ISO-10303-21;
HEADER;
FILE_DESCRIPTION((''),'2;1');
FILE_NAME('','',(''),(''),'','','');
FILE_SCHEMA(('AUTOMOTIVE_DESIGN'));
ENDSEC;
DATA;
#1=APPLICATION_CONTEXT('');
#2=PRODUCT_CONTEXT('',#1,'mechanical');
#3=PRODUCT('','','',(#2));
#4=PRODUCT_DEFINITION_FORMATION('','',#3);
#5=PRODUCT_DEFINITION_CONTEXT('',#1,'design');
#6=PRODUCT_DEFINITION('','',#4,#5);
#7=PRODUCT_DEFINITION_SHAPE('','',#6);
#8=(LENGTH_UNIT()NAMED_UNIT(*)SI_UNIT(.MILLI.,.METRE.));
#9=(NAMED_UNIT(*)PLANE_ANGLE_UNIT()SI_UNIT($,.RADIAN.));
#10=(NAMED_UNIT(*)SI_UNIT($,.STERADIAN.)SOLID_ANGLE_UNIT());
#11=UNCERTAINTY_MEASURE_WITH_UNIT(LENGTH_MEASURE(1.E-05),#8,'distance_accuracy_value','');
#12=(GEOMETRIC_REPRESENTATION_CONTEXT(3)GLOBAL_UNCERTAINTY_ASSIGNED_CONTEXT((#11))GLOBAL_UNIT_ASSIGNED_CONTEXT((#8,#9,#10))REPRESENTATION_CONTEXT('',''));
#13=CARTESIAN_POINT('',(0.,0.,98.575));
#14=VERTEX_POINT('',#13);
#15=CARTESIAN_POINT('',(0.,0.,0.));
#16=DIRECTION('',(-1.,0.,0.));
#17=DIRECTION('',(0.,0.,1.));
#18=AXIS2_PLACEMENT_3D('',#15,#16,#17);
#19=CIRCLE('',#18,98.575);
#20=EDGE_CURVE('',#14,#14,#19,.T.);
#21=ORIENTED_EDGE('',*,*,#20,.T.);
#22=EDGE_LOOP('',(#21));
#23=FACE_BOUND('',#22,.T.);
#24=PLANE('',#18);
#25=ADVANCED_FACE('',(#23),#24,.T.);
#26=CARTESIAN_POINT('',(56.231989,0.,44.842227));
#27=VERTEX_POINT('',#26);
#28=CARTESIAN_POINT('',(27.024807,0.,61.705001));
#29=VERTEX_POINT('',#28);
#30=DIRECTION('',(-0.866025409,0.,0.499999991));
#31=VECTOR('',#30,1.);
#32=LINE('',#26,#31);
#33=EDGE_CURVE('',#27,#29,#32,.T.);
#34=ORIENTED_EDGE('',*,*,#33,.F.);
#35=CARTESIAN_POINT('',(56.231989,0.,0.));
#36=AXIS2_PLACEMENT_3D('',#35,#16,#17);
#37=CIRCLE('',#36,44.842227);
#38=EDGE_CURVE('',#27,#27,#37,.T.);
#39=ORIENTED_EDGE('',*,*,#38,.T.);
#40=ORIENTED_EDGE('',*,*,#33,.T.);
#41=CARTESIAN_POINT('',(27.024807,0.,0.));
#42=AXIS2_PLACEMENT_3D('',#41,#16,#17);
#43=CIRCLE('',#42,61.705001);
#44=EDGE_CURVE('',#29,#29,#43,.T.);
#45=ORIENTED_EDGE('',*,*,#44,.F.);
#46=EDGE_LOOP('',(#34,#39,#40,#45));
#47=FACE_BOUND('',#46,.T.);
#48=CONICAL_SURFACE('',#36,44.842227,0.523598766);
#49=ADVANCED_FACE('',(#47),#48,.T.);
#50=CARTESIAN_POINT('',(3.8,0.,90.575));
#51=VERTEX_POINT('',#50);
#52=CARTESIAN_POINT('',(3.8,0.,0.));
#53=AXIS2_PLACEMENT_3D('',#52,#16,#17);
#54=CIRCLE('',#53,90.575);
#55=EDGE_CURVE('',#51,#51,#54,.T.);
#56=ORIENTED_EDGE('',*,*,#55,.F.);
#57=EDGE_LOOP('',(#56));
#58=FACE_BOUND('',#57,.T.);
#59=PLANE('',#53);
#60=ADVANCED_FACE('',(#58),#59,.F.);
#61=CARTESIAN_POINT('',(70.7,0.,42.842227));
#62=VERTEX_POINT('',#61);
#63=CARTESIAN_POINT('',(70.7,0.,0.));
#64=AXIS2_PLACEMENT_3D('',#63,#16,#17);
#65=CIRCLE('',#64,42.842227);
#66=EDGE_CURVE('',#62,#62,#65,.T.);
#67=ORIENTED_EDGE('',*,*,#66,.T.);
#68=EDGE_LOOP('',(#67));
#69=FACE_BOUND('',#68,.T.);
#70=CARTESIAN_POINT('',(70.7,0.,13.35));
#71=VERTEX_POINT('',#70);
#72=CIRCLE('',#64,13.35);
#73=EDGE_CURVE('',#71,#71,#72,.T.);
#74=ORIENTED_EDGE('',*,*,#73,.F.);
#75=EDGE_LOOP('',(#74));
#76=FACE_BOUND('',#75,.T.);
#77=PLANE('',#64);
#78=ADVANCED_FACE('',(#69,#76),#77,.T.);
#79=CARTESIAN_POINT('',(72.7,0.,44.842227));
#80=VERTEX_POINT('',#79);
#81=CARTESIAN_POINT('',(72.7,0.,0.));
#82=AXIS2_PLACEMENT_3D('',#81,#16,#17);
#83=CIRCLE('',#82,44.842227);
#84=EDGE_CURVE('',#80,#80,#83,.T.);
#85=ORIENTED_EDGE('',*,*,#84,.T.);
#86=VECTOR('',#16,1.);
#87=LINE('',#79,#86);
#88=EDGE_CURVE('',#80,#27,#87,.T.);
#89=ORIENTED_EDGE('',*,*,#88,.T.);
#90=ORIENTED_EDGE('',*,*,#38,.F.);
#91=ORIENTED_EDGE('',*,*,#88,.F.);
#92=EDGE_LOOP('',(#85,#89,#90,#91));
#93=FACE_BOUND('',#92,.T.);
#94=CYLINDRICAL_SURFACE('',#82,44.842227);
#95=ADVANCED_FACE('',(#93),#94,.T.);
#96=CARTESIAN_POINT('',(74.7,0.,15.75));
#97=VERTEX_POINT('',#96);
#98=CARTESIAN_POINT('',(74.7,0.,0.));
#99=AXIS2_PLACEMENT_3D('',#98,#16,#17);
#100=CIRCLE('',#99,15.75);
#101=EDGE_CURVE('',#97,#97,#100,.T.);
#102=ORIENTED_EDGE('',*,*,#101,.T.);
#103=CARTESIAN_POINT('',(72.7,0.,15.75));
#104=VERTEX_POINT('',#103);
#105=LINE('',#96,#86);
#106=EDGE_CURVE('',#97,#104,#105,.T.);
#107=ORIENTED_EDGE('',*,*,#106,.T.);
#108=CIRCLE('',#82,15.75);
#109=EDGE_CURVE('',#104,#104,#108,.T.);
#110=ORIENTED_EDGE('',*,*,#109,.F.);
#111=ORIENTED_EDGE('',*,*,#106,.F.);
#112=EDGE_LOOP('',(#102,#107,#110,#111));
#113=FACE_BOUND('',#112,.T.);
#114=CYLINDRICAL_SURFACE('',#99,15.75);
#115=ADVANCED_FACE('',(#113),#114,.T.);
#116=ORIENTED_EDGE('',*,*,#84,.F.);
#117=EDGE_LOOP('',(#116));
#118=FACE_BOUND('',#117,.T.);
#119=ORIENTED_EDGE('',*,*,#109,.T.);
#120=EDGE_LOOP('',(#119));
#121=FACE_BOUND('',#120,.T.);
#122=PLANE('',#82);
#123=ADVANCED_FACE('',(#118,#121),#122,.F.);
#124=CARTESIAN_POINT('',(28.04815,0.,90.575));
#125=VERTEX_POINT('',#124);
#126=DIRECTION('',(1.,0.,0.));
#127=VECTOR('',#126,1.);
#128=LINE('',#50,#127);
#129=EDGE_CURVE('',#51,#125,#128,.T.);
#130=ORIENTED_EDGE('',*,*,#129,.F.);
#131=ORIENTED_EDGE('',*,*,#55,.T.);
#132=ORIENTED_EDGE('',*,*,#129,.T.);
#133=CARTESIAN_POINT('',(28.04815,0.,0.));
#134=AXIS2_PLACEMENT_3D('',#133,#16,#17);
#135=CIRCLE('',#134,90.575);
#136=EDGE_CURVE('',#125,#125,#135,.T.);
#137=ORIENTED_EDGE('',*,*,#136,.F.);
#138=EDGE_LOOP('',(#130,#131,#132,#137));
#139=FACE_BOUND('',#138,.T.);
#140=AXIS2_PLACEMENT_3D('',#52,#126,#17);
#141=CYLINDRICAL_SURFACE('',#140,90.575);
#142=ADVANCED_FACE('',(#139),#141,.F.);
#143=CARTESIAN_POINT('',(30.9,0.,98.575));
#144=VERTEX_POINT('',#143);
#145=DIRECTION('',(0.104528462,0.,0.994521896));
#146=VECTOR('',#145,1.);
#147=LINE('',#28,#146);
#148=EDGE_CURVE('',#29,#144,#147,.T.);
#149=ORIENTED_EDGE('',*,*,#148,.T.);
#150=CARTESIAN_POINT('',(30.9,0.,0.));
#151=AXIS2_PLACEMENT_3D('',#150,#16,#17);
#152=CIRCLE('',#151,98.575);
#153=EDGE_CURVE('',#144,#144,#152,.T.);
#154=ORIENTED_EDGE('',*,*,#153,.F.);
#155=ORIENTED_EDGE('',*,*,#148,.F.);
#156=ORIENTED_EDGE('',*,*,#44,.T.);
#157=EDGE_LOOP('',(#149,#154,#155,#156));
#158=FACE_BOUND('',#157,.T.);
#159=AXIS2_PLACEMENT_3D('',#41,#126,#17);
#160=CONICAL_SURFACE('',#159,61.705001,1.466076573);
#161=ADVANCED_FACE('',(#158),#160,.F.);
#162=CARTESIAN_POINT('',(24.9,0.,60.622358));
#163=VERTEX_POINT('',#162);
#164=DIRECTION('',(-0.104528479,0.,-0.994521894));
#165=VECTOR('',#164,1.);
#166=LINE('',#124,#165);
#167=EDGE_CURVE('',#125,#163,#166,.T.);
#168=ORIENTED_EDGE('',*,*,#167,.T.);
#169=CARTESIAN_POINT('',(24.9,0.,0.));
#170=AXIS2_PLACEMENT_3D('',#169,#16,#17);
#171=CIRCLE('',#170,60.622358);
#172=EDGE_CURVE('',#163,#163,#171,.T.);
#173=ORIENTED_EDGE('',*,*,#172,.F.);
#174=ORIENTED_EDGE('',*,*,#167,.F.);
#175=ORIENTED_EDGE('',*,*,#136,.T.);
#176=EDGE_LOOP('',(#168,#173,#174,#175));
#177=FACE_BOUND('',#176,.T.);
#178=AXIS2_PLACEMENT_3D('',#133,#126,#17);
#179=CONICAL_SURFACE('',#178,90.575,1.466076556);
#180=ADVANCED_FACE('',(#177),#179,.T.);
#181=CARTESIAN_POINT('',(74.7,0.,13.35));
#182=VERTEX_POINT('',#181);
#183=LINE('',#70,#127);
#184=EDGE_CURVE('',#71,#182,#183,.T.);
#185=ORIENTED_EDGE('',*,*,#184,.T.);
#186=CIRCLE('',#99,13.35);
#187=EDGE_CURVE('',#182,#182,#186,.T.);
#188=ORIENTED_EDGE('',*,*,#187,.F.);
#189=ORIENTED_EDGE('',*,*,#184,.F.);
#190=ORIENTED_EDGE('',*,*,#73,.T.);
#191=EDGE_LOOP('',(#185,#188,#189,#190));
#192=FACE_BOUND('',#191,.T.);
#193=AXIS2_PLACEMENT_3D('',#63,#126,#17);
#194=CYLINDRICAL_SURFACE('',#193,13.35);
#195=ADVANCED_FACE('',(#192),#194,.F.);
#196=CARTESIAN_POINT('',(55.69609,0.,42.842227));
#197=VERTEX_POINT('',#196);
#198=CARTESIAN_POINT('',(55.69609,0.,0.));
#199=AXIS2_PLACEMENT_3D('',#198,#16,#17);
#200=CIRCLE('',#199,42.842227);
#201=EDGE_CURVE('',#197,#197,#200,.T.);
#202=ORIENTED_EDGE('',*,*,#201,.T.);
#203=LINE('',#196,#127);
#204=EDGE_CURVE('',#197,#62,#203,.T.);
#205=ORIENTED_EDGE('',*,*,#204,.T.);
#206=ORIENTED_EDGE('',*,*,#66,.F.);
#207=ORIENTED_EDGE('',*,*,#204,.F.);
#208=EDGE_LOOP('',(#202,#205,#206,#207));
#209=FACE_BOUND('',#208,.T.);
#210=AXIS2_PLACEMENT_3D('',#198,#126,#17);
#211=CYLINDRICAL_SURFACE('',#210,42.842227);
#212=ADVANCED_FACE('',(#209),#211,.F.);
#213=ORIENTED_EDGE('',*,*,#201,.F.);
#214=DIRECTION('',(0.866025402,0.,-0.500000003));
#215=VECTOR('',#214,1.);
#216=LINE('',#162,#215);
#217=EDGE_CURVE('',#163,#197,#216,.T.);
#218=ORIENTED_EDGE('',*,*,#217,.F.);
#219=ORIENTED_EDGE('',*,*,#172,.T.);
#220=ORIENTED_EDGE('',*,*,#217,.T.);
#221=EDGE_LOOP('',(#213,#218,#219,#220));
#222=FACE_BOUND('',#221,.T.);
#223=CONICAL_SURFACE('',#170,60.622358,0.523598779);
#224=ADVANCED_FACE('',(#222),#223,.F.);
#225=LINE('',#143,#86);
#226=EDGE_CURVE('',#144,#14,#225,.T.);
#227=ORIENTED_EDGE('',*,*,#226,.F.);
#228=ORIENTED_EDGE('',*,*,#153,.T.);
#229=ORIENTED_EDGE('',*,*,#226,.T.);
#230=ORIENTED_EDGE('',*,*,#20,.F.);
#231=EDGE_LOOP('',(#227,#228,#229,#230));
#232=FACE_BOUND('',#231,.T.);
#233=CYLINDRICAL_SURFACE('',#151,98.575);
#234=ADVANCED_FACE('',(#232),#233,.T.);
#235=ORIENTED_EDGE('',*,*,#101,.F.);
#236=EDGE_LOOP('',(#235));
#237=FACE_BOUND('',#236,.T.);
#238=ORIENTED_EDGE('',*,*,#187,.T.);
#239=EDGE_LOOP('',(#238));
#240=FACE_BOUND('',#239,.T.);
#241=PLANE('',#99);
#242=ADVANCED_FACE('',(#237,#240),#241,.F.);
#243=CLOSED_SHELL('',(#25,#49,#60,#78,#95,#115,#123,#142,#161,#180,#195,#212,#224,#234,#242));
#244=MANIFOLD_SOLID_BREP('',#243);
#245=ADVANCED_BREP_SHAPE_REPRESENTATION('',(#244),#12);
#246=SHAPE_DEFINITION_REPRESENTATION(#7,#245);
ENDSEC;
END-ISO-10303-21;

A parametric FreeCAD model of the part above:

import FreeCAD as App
import Part
import Sketcher
from FreeCAD import Vector
Q = App.Units.Quantity

doc = App.newDocument("Part")
params = doc.addObject("Spreadsheet::Sheet", "Params")
for row, (alias, value) in enumerate([
    ("sketch1_width", "4 mm"),
    ("sketch1_width2", "2 mm"),
    ("sketch1_width3", "3.8 mm"),
    ("sketch1_width4", "30.9 mm"),
    ("sketch1_height", "2.4 mm"),
    ("revolution_angle", "360 deg"),
], start=1):
    params.set(f"A{row}", alias)
    params.set(f"B{row}", "=" + value)
    params.setAlias(f"B{row}", alias)

body = doc.addObject("PartDesign::Body", "Body")

sketch1 = doc.addObject("Sketcher::SketchObject", "Sketch")
body.addObject(sketch1)
sketch1.AttachmentSupport = (doc.XZ_Plane, [""])
sketch1.MapMode = "FlatFace"
sketch1.addGeometry([
    Part.LineSegment(Vector(0, 98.6, 0), Vector(0, 0, 0)),
    Part.LineSegment(Vector(0, 0, 0), Vector(3.8, 0, 0)),
    Part.LineSegment(Vector(3.8, 0, 0), Vector(3.8, 90.6, 0)),
    Part.LineSegment(Vector(3.8, 90.6, 0), Vector(28, 90.6, 0)),
    Part.LineSegment(Vector(28, 90.6, 0), Vector(24.9, 60.6, 0)),
    Part.LineSegment(Vector(24.9, 60.6, 0), Vector(55.7, 42.8, 0)),
    Part.LineSegment(Vector(55.7, 42.8, 0), Vector(70.7, 42.8, 0)),
    Part.LineSegment(Vector(70.7, 42.8, 0), Vector(70.7, 13.3, 0)),
    Part.LineSegment(Vector(70.7, 13.3, 0), Vector(74.7, 13.3, 0)),
    Part.LineSegment(Vector(74.7, 13.3, 0), Vector(74.7, 15.8, 0)),
    Part.LineSegment(Vector(74.7, 15.8, 0), Vector(72.7, 15.8, 0)),
    Part.LineSegment(Vector(72.7, 15.8, 0), Vector(72.7, 44.8, 0)),
    Part.LineSegment(Vector(72.7, 44.8, 0), Vector(56.2, 44.8, 0)),
    Part.LineSegment(Vector(56.2, 44.8, 0), Vector(27, 61.7, 0)),
    Part.LineSegment(Vector(27, 61.7, 0), Vector(30.9, 98.6, 0)),
    Part.LineSegment(Vector(30.9, 98.6, 0), Vector(0, 98.6, 0)),
], False)
sketch1.addConstraint([
    Sketcher.Constraint("Coincident", 0, 2, 1, 1),
    Sketcher.Constraint("Coincident", 1, 2, 2, 1),
    Sketcher.Constraint("Coincident", 2, 2, 3, 1),
    Sketcher.Constraint("Coincident", 3, 2, 4, 1),
    Sketcher.Constraint("Coincident", 4, 2, 5, 1),
    Sketcher.Constraint("Coincident", 5, 2, 6, 1),
    Sketcher.Constraint("Coincident", 6, 2, 7, 1),
    Sketcher.Constraint("Coincident", 7, 2, 8, 1),
    Sketcher.Constraint("Coincident", 8, 2, 9, 1),
    Sketcher.Constraint("Coincident", 9, 2, 10, 1),
    Sketcher.Constraint("Coincident", 10, 2, 11, 1),
    Sketcher.Constraint("Coincident", 11, 2, 12, 1),
    Sketcher.Constraint("Coincident", 12, 2, 13, 1),
    Sketcher.Constraint("Coincident", 13, 2, 14, 1),
    Sketcher.Constraint("Coincident", 14, 2, 15, 1),
    Sketcher.Constraint("Coincident", 15, 2, 0, 1),
    Sketcher.Constraint("Vertical", 0),
    Sketcher.Constraint("Horizontal", 1),
    Sketcher.Constraint("Vertical", 2),
    Sketcher.Constraint("Horizontal", 3),
    Sketcher.Constraint("Horizontal", 6),
    Sketcher.Constraint("Vertical", 7),
    Sketcher.Constraint("Horizontal", 8),
    Sketcher.Constraint("Vertical", 9),
    Sketcher.Constraint("Horizontal", 10),
    Sketcher.Constraint("Vertical", 11),
    Sketcher.Constraint("Horizontal", 12),
    Sketcher.Constraint("Horizontal", 15),
    Sketcher.Constraint("Coincident", 0, 2, -1, 1),
    Sketcher.Constraint("Parallel", 5, 13),
    Sketcher.Constraint("Parallel", 4, 14),
    Sketcher.Constraint("DistanceX", 8, 1, 8, 2, Q("4 mm")),
    Sketcher.Constraint("DistanceX", 10, 2, 10, 1, Q("2 mm")),
    Sketcher.Constraint("Angle", 4, Q("-96.000001 deg")),
    Sketcher.Constraint("Angle", 5, Q("-30 deg")),
    Sketcher.Constraint("DistanceX", 1, 1, 1, 2, Q("3.8 mm")),
    Sketcher.Constraint("DistanceX", 15, 2, 15, 1, Q("30.9 mm")),
    Sketcher.Constraint("DistanceY", 9, 1, 9, 2, Q("2.4 mm")),
    Sketcher.Constraint("DistanceY", 6, 2, 11, 2, Q("2 mm")),
    Sketcher.Constraint("DistanceY", 3, 2, 14, 2, Q("8 mm")),
    Sketcher.Constraint("DistanceX", 4, 2, 14, 2, Q("6 mm")),
    Sketcher.Constraint("DistanceX", -1, 1, 6, 2, Q("70.7 mm")),
    Sketcher.Constraint("DistanceY", 0, 2, 0, 1, Q("98.575 mm")),
    Sketcher.Constraint("DistanceY", -1, 1, 7, 2, Q("13.35 mm")),
    Sketcher.Constraint("DistanceY", 13, 2, 3, 2, Q("28.869999 mm")),
    Sketcher.Constraint("DistanceX", 3, 1, 3, 2, Q("24.24815 mm")),
    Sketcher.Constraint("DistanceX", 6, 1, 6, 2, Q("15.00391 mm")),
])
sketch1.setExpression("Constraints[31]", "Params.sketch1_width")
sketch1.setExpression("Constraints[32]", "Params.sketch1_width2")
sketch1.setExpression("Constraints[35]", "Params.sketch1_width3")
sketch1.setExpression("Constraints[36]", "Params.sketch1_width4")
sketch1.setExpression("Constraints[37]", "Params.sketch1_height")
revolution = doc.addObject("PartDesign::Revolution", "Revolution")
body.addObject(revolution)
revolution.Profile = sketch1
revolution.ReferenceAxis = (sketch1, ["H_Axis"])
revolution.setExpression("Angle", "Params.revolution_angle")

doc.recompute()
